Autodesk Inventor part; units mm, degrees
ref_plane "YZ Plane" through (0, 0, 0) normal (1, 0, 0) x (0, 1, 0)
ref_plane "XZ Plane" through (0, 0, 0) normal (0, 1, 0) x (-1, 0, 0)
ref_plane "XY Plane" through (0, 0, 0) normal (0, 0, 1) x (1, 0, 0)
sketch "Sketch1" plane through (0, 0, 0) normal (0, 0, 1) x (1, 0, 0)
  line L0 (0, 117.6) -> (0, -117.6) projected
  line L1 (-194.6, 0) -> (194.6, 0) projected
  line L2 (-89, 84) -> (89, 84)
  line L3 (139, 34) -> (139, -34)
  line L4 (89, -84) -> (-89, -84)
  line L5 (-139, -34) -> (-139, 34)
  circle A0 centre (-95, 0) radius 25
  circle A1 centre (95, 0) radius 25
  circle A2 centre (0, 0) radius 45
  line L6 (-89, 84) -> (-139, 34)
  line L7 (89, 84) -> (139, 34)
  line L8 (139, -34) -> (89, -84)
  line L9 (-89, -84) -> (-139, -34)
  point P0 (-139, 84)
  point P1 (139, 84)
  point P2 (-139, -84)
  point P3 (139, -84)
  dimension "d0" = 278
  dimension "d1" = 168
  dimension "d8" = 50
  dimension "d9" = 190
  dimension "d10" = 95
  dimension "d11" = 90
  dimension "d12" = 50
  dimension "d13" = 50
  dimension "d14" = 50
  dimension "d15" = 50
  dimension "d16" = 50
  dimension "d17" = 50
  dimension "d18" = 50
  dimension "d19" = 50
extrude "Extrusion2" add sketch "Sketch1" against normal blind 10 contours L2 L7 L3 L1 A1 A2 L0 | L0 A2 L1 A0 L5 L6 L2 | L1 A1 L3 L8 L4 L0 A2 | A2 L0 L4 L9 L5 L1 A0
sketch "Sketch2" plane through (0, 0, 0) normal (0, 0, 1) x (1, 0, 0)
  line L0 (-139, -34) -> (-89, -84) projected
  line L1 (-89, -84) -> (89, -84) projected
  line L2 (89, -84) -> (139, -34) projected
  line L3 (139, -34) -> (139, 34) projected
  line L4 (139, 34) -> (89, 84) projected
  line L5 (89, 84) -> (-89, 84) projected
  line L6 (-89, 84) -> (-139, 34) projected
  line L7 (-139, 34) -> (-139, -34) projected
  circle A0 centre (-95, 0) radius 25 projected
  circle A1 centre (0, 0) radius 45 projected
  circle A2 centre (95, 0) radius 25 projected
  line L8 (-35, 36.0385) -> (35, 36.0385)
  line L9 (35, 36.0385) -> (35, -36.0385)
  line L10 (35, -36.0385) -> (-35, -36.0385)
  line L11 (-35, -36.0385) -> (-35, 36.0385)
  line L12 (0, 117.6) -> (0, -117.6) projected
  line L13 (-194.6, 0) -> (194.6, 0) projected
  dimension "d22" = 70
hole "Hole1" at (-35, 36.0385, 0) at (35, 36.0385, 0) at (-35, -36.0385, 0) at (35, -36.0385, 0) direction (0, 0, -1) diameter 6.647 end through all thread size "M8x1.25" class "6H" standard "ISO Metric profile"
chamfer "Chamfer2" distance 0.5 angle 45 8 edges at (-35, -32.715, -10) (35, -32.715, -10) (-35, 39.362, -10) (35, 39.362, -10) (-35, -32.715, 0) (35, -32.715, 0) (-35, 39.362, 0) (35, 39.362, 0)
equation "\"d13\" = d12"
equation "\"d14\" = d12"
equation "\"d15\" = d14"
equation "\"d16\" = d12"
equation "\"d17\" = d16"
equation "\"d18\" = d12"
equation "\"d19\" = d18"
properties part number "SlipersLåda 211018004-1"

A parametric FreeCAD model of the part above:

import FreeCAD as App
import Part
import Sketcher

V = App.Vector
Q = App.Units.Quantity


def edges_at(feature, points):
    """Names of the edges that pass closest to the given points."""
    edges = feature.Shape.Edges
    near = lambda p: min(range(len(edges)), key=lambda i: edges[i].distToShape(Part.Vertex(*p))[0])
    return sorted({f"Edge{near(p) + 1}" for p in points})


def add_polygon(sketch, points):
    """Adds a closed chain of lines whose ends are joined by coincident constraints."""
    first, n = sketch.GeometryCount, len(points)
    for a, b in zip(points, points[1:] + points[:1]):
        sketch.addGeometry(Part.LineSegment(App.Vector(*a, 0), App.Vector(*b, 0)), False)
    for i in range(n):
        sketch.addConstraint(Sketcher.Constraint("Coincident", first + i, 2, first + (i + 1) % n, 1))

doc = App.newDocument("Part")
body = doc.addObject("PartDesign::Body", "Body")

# Sketch on XY plane
sketch1 = body.newObject("Sketcher::SketchObject", "Sketch")
sketch1.AttachmentSupport = (doc.getObject("XY_Plane"), [""])
sketch1.MapMode = "FlatFace"
add_polygon(sketch1, [(89, 84), (-89, 84), (-139, 34), (-139, -34), (-89, -84), (89, -84), (139, -34), (139, 34)])  # lines 0-7
sketch1.addGeometry(Part.Circle(V(95, 0, 0), V(0, 0, 1), 25), False)  # 8
sketch1.addGeometry(Part.Circle(V(0, 0, 0), V(0, 0, 1), 45), False)  # 9
sketch1.addGeometry(Part.Circle(V(-95, 0, 0), V(0, 0, 1), 25), False)  # 10
sketch1.addConstraint(Sketcher.Constraint("Horizontal", 0))
sketch1.addConstraint(Sketcher.Constraint("Vertical", 2))
sketch1.addConstraint(Sketcher.Constraint("Horizontal", 4))
sketch1.addConstraint(Sketcher.Constraint("Vertical", 6))
sketch1.addConstraint(Sketcher.Constraint("Coincident", 9, 3, -1, 1))
sketch1.addConstraint(Sketcher.Constraint("Equal", 8, 10))
sketch1.addConstraint(Sketcher.Constraint("Symmetric", 8, 3, 10, 3, -1, 1))
sketch1.addConstraint(Sketcher.Constraint("Symmetric", 0, 2, 4, 2, -1, 1))
sketch1.addConstraint(Sketcher.Constraint("Symmetric", 1, 2, 5, 2, -1, 1))
sketch1.addConstraint(Sketcher.Constraint("PointOnObject", 8, 3, -1))
sketch1.addConstraint(Sketcher.Constraint("Perpendicular", 1, 3))
sketch1.addConstraint(Sketcher.Constraint("Perpendicular", 5, 7))
sketch1.addConstraint(Sketcher.Constraint("Horizontal", 2, 2, 5, 2))
sketch1.addConstraint(Sketcher.Constraint("Horizontal", 1, 2, 6, 2))
sketch1.addConstraint(Sketcher.Constraint("Vertical", 0, 2, 3, 2))
sketch1.addConstraint(Sketcher.Constraint("Diameter", 8, Q("50 mm")))
sketch1.addConstraint(Sketcher.Constraint("Diameter", 9, Q("90 mm")))
sketch1.addConstraint(Sketcher.Constraint("DistanceX", -1, 1, 8, 3, Q("95 mm")))
sketch1.addConstraint(Sketcher.Constraint("DistanceX", 1, 2, 0, 2, Q("50 mm")))
sketch1.addConstraint(Sketcher.Constraint("DistanceY", 3, 2, 0, 2, Q("168 mm")))
sketch1.addConstraint(Sketcher.Constraint("DistanceX", 0, 2, 0, 1, Q("178 mm")))
pad1 = body.newObject("PartDesign::Pad", "Pad")
pad1.Profile = sketch1
pad1.Length = 10
pad1.Reversed = True

# Sketch on XY plane
sketch2 = body.newObject("Sketcher::SketchObject", "Sketch001")
sketch2.AttachmentSupport = (doc.getObject("XY_Plane"), [""])
sketch2.MapMode = "FlatFace"
sketch2.addGeometry(Part.Circle(V(-35, 36, 0), V(0, 0, 1), 3.3), False)
sketch2.addGeometry(Part.Circle(V(35, 36, 0), V(0, 0, 1), 3.3), False)
sketch2.addGeometry(Part.Circle(V(-35, -36, 0), V(0, 0, 1), 3.3), False)
sketch2.addGeometry(Part.Circle(V(35, -36, 0), V(0, 0, 1), 3.3), False)
sketch2.addConstraint(Sketcher.Constraint("Equal", 0, 1))
sketch2.addConstraint(Sketcher.Constraint("Equal", 1, 2))
sketch2.addConstraint(Sketcher.Constraint("Equal", 2, 3))
sketch2.addConstraint(Sketcher.Constraint("Symmetric", 1, 3, 2, 3, -1, 1))
sketch2.addConstraint(Sketcher.Constraint("Symmetric", 0, 3, 3, 3, -1, 1))
sketch2.addConstraint(Sketcher.Constraint("Symmetric", 0, 3, 1, 3, -2))
sketch2.addConstraint(Sketcher.Constraint("Diameter", 0, Q("6.647 mm")))
sketch2.addConstraint(Sketcher.Constraint("DistanceX", 0, 3, -1, 1, Q("35 mm")))
sketch2.addConstraint(Sketcher.Constraint("DistanceY", 2, 3, 0, 3, Q("72.077 mm")))
doc.recompute()
hole = body.newObject("PartDesign::Hole", "Hole")
hole.Profile = sketch2
hole.ThreadType = "None"
hole.Diameter = 6.647
hole.DepthType = "ThroughAll"
doc.recompute()

chamfer = body.newObject("PartDesign::Chamfer", "Chamfer")
chamfer.Base = (hole, edges_at(hole, [
    (-35, -32.715, -10),
    (35, -32.715, -10),
    (-35, 39.362, -10),
    (35, 39.362, -10),
    (-35, -32.715, 0),
    (35, -32.715, 0),
    (-35, 39.362, 0),
    (35, 39.362, 0),
]))
chamfer.Size = 0.5

doc.recompute()
